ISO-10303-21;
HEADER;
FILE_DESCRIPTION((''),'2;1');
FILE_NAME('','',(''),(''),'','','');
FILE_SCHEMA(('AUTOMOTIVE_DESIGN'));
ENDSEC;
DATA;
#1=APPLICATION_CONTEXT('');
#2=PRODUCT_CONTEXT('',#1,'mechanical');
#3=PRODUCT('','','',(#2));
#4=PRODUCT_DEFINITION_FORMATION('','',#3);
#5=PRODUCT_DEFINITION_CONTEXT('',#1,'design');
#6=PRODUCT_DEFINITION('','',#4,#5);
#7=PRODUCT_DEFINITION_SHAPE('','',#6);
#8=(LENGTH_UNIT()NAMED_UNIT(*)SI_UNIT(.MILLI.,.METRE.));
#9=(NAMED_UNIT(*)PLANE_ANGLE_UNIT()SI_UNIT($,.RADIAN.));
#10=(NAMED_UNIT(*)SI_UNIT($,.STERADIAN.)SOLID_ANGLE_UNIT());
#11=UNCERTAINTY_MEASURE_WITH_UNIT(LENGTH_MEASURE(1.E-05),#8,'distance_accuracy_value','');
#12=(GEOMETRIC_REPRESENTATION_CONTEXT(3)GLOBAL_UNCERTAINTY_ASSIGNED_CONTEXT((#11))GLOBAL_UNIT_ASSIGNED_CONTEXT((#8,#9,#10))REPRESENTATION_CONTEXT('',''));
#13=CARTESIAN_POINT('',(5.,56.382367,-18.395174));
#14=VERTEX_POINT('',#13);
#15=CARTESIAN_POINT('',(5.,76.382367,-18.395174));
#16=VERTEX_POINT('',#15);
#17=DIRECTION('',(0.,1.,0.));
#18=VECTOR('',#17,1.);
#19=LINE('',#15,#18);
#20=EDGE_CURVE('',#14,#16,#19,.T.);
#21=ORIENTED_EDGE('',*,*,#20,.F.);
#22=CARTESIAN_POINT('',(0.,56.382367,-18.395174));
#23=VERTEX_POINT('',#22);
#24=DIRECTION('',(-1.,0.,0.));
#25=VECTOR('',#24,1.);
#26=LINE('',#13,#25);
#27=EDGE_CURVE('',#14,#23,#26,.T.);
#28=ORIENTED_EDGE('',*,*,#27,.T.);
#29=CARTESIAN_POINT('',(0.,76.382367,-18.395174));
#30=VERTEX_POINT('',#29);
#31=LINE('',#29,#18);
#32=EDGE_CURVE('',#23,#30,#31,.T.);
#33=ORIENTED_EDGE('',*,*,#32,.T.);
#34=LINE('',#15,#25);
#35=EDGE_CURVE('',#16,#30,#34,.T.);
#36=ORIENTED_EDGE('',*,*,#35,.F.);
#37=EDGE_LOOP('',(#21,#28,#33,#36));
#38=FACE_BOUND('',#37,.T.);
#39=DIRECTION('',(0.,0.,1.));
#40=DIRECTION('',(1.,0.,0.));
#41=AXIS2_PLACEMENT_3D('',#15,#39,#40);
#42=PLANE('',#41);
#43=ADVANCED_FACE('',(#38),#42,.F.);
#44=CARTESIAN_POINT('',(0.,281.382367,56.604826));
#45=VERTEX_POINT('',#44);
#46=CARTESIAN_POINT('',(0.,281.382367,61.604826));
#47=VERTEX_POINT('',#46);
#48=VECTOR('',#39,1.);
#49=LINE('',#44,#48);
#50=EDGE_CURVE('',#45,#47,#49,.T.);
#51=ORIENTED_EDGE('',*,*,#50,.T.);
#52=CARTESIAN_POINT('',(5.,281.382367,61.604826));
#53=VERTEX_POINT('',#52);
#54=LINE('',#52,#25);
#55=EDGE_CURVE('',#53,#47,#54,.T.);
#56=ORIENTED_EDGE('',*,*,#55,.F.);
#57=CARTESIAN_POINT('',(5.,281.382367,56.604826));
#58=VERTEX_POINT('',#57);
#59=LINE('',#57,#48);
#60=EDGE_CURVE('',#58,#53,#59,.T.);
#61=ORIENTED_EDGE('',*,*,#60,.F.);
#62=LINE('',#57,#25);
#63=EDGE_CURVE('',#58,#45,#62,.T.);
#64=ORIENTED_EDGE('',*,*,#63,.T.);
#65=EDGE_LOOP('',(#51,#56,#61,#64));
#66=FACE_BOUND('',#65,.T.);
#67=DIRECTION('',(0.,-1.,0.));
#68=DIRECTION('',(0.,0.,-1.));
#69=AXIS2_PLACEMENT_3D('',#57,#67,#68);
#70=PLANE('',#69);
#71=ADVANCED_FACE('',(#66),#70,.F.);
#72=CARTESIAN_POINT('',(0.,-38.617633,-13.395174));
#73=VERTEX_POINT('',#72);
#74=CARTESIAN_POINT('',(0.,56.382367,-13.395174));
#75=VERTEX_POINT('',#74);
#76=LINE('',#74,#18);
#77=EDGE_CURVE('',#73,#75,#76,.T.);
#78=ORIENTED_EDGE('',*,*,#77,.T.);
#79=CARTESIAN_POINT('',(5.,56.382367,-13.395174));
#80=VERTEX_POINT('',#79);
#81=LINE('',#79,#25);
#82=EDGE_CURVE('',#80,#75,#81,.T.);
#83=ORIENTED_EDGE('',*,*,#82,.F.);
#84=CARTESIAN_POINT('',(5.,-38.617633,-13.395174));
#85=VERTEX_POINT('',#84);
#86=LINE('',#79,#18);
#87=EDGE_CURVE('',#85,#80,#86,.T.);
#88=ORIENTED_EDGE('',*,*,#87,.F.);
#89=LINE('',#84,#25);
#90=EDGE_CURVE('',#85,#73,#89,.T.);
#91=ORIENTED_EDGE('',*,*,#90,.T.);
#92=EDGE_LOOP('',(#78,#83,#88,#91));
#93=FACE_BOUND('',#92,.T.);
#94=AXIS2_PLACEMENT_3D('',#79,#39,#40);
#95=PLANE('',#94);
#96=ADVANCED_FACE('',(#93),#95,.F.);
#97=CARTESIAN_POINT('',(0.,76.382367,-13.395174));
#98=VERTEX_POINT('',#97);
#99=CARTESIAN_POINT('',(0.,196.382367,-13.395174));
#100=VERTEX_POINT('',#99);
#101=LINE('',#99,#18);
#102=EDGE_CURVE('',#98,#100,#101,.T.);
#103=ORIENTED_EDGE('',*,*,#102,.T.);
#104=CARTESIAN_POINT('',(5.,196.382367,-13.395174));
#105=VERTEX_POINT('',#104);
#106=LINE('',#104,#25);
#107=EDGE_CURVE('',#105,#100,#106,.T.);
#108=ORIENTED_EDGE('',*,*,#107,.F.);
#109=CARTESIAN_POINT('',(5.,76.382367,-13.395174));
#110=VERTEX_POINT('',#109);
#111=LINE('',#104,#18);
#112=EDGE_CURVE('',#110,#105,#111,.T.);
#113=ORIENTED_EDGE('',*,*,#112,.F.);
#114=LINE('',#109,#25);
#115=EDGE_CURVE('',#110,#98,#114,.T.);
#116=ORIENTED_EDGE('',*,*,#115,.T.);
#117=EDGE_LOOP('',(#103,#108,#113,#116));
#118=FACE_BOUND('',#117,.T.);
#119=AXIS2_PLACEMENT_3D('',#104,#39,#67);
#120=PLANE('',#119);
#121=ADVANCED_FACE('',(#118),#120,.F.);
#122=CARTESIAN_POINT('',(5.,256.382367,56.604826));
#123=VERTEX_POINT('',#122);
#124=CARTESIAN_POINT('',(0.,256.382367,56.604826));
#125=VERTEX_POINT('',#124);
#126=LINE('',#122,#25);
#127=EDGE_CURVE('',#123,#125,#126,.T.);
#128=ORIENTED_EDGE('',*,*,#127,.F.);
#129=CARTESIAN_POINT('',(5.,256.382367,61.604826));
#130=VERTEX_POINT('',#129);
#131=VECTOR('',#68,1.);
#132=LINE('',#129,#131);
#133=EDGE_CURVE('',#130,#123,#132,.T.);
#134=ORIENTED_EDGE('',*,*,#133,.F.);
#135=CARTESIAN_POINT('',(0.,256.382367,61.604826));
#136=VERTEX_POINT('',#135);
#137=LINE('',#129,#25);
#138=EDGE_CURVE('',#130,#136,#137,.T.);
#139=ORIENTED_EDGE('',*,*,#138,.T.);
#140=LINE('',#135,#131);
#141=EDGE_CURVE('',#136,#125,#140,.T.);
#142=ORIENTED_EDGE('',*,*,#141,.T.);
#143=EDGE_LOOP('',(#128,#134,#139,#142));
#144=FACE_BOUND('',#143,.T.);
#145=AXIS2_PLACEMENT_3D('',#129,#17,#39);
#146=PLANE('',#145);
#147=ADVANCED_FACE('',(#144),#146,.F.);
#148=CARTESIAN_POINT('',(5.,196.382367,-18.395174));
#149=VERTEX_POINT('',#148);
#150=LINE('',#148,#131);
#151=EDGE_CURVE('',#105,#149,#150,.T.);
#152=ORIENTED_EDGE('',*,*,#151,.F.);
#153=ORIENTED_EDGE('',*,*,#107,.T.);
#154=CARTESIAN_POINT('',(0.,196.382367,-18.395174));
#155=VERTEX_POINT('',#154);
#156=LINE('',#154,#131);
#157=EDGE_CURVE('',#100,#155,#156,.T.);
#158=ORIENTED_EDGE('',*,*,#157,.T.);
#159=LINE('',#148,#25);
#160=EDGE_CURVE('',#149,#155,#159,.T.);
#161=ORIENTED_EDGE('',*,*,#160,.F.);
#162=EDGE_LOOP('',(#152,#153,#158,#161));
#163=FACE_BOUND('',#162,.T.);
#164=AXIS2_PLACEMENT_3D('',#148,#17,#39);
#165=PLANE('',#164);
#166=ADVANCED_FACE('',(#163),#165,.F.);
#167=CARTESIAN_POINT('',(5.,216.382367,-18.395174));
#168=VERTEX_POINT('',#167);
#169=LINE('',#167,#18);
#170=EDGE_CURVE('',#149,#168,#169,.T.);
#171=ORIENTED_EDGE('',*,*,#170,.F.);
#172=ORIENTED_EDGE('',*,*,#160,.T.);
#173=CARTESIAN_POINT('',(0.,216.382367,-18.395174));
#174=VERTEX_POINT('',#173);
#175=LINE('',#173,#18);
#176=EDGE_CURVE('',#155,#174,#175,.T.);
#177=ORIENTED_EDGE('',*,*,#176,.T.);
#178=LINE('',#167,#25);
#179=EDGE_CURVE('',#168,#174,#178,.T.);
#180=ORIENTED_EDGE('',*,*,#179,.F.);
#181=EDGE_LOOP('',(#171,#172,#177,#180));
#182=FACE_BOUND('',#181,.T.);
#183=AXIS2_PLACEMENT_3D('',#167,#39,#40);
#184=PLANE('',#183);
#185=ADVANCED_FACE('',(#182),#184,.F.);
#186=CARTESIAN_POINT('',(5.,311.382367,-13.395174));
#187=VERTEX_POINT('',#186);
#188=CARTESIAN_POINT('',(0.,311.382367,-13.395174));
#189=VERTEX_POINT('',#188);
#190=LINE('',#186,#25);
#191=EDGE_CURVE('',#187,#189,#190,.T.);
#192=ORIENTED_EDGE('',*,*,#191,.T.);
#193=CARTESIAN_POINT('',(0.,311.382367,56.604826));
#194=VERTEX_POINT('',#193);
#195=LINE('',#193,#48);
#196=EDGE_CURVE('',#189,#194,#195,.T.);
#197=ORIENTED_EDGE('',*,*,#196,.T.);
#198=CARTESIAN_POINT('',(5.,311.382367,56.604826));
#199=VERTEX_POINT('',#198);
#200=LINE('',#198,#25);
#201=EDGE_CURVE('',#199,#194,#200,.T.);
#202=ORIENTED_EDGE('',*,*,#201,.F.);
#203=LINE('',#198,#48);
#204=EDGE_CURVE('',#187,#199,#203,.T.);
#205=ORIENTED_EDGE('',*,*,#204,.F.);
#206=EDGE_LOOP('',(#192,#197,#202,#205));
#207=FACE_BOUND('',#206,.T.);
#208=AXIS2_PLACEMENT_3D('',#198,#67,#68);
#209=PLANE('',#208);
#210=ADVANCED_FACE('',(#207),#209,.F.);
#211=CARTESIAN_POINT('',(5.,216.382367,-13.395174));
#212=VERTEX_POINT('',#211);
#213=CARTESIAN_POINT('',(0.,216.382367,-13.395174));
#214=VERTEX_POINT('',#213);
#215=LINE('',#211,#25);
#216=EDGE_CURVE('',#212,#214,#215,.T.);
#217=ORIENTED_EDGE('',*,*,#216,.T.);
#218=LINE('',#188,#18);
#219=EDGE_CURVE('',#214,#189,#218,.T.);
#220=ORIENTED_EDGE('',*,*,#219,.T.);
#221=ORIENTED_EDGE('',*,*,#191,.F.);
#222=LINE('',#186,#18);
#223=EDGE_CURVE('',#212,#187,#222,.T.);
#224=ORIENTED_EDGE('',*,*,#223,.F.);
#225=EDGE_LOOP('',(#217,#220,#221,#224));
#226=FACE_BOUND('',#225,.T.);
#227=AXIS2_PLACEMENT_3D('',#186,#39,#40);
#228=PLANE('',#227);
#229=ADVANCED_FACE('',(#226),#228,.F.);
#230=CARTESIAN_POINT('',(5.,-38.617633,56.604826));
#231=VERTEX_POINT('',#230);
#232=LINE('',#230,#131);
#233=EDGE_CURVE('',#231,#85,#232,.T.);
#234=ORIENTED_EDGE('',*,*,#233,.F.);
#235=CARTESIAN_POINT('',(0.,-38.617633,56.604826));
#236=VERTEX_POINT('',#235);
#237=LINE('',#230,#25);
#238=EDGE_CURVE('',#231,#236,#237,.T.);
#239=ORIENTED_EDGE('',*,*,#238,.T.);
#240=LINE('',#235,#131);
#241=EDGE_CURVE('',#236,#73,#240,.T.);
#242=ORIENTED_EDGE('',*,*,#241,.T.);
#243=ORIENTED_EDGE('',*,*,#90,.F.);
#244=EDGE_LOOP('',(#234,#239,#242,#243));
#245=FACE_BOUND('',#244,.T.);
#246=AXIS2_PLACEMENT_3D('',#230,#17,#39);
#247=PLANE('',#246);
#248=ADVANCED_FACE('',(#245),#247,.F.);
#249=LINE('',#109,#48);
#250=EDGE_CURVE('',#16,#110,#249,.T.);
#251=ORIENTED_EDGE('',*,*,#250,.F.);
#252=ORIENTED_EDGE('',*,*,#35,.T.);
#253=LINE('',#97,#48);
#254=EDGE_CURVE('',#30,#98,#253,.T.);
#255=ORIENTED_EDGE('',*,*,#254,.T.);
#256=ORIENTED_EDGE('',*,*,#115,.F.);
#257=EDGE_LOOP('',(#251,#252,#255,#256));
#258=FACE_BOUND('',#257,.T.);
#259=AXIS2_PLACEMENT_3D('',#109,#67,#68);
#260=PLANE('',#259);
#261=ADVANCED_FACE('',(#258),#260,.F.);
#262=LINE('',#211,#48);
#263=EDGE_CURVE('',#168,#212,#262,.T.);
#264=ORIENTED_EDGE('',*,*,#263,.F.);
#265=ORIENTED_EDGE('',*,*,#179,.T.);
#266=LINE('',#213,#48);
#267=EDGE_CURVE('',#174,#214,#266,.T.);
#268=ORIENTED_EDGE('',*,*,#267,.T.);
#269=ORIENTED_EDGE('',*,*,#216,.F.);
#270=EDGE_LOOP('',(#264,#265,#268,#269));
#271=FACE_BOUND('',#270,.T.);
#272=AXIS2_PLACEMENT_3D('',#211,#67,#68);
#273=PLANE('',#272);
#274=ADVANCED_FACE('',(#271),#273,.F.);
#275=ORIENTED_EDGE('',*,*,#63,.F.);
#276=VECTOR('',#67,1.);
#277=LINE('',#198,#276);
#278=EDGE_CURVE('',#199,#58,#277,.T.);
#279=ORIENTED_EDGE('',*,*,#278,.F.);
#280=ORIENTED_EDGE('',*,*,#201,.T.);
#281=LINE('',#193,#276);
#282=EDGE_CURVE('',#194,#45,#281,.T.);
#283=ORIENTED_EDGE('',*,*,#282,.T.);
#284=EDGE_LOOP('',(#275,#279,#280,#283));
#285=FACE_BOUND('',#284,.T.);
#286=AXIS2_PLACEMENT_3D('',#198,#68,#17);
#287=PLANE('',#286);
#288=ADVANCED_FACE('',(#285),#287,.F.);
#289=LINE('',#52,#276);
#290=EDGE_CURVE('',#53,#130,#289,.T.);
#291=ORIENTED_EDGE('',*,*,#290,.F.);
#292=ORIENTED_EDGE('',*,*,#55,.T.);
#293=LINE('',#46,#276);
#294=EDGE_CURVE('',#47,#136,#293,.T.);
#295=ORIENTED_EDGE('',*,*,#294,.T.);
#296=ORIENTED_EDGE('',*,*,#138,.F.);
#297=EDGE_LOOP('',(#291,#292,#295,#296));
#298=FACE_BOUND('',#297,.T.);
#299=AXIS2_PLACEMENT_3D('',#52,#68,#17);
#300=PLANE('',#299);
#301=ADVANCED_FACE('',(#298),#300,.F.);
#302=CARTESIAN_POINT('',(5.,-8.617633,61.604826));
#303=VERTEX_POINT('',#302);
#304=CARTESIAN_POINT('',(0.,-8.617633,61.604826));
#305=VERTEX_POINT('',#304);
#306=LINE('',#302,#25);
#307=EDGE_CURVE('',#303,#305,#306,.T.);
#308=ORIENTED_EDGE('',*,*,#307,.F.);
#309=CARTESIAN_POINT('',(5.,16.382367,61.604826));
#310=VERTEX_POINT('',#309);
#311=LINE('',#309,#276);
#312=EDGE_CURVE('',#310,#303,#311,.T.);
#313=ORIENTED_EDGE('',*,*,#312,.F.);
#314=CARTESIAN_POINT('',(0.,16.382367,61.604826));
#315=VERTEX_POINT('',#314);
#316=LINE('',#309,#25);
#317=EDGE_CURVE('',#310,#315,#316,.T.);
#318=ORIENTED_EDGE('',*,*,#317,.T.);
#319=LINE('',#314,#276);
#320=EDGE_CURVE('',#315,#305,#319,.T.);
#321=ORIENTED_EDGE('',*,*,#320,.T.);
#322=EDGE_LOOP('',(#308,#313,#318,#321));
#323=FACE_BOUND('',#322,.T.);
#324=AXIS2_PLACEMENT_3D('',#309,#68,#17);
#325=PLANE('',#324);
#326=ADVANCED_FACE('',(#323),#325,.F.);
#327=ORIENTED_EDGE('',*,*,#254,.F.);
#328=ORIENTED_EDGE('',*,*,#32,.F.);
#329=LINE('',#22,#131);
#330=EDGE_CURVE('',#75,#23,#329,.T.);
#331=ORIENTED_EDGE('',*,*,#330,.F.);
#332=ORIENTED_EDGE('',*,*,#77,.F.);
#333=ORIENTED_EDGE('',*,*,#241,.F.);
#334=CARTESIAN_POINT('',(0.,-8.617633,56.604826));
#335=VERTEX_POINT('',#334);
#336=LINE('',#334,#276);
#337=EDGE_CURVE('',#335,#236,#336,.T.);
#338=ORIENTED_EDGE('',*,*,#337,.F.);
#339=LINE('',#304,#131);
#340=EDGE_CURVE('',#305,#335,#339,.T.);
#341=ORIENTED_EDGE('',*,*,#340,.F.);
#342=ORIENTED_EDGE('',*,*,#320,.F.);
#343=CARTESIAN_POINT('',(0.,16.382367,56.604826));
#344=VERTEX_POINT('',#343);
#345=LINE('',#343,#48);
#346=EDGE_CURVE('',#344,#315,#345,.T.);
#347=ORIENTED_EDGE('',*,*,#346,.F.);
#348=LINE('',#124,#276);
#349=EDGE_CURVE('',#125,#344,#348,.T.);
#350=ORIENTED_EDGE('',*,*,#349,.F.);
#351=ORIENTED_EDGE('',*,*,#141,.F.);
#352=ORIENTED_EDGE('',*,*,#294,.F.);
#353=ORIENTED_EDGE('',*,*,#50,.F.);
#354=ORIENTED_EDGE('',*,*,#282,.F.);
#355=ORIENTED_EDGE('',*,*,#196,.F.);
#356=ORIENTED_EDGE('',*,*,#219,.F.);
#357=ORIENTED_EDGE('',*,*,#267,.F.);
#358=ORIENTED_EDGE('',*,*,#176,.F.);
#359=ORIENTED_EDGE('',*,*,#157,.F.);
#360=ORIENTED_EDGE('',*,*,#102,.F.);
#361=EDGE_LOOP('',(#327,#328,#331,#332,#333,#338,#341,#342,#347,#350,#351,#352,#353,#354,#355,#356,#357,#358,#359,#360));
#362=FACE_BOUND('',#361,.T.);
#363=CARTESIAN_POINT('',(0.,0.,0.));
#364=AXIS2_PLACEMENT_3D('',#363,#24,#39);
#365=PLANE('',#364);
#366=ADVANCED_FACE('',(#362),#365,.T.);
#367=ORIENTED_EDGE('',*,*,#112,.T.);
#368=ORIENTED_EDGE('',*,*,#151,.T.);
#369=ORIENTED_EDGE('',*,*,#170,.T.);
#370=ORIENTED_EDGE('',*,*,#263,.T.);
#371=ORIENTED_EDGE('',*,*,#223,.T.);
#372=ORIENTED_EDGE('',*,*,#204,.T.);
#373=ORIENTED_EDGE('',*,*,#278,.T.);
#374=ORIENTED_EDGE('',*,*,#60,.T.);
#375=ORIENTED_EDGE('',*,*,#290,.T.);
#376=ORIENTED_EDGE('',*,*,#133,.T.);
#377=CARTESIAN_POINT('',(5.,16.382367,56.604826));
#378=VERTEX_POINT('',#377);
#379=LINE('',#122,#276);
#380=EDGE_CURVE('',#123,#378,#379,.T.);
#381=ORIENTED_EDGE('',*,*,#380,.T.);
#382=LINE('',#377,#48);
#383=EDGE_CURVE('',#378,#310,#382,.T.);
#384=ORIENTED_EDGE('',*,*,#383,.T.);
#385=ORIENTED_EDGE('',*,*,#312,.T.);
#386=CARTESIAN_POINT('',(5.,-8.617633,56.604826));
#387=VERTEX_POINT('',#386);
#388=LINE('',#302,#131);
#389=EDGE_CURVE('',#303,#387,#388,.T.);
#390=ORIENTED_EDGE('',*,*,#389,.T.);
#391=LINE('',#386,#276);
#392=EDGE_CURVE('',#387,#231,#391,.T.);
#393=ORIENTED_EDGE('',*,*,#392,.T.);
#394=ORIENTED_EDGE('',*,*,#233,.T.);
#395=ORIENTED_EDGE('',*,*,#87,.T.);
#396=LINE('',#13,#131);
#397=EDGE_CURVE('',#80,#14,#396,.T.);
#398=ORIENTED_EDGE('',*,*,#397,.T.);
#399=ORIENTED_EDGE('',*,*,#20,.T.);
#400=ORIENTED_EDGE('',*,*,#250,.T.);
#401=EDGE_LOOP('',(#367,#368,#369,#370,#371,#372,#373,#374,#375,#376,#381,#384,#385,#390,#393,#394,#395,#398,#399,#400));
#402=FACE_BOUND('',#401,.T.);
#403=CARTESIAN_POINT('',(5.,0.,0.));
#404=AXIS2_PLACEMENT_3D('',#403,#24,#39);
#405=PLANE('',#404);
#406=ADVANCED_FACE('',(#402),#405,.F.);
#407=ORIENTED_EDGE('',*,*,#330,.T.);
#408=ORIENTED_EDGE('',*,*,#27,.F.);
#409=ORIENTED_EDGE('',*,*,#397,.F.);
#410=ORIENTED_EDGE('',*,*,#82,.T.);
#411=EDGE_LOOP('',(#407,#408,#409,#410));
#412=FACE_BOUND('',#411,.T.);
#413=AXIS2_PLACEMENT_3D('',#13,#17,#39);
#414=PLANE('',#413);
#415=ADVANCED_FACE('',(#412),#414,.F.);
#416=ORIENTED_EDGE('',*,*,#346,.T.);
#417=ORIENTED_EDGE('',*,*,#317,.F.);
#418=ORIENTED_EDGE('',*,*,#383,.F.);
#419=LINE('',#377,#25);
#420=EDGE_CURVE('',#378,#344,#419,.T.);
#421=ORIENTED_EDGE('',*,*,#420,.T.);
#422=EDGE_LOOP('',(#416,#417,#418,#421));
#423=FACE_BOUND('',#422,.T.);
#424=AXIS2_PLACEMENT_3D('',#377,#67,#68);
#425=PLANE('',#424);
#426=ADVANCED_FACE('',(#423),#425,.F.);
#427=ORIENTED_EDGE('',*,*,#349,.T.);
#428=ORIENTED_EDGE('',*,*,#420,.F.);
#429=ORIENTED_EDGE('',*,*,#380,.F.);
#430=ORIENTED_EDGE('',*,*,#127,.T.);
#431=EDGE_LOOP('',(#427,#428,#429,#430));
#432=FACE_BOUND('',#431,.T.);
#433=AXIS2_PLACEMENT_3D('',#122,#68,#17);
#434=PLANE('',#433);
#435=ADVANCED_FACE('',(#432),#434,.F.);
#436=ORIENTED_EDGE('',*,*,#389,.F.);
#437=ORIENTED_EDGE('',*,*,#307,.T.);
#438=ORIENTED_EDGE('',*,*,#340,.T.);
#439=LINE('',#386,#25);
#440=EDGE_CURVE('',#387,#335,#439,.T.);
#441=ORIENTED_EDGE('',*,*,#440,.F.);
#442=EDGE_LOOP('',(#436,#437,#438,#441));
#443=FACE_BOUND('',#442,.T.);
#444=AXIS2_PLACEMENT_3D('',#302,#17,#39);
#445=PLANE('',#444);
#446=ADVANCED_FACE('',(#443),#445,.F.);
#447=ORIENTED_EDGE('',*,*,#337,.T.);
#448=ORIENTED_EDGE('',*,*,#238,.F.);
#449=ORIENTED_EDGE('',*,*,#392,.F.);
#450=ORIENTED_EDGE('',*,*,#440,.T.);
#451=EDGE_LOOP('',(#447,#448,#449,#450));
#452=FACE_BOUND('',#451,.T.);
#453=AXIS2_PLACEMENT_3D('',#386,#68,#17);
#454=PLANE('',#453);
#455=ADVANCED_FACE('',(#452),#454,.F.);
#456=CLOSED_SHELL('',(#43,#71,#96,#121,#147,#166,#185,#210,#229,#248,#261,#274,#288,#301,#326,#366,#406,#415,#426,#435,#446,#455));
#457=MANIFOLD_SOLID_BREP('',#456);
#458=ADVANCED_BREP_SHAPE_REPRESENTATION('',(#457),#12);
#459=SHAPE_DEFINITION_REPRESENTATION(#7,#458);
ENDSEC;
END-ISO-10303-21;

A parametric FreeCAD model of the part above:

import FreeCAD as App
import Part
import Sketcher
from FreeCAD import Vector
Q = App.Units.Quantity


def add_polygon(sketch, points):
    """Adds a closed chain of lines whose ends are joined by coincident constraints."""
    first, n = sketch.GeometryCount, len(points)
    for a, b in zip(points, points[1:] + points[:1]):
        sketch.addGeometry(Part.LineSegment(App.Vector(*a, 0), App.Vector(*b, 0)), False)
    for i in range(n):
        sketch.addConstraint(Sketcher.Constraint("Coincident", first + i, 2, first + (i + 1) % n, 1))

doc = App.newDocument("Part")
body = doc.addObject("PartDesign::Body", "Body")

# Sketch on YZ plane
sketch1 = doc.addObject("Sketcher::SketchObject", "Sketch")
body.addObject(sketch1)
sketch1.AttachmentSupport = (doc.YZ_Plane, [""])
sketch1.MapMode = "FlatFace"
add_polygon(sketch1, [(16.4, 61.6), (-8.6, 61.6), (-8.6, 56.6), (-38.6, 56.6), (-38.6, -13.4), (56.4, -13.4), (56.4, -18.4), (76.4, -18.4), (76.4, -13.4), (196.4, -13.4), (196.4, -18.4), (216.4, -18.4), (216.4, -13.4), (311.4, -13.4), (311.4, 56.6), (281.4, 56.6), (281.4, 61.6), (256.4, 61.6), (256.4, 56.6), (16.4, 56.6)])  # lines 0-19
sketch1.addConstraint(Sketcher.Constraint("Horizontal", 0))
sketch1.addConstraint(Sketcher.Constraint("Vertical", 1))
sketch1.addConstraint(Sketcher.Constraint("Horizontal", 2))
sketch1.addConstraint(Sketcher.Constraint("Vertical", 3))
sketch1.addConstraint(Sketcher.Constraint("Horizontal", 4))
sketch1.addConstraint(Sketcher.Constraint("Vertical", 5))
sketch1.addConstraint(Sketcher.Constraint("Horizontal", 6))
sketch1.addConstraint(Sketcher.Constraint("Vertical", 7))
sketch1.addConstraint(Sketcher.Constraint("Horizontal", 8))
sketch1.addConstraint(Sketcher.Constraint("Vertical", 9))
sketch1.addConstraint(Sketcher.Constraint("Horizontal", 10))
sketch1.addConstraint(Sketcher.Constraint("Vertical", 11))
sketch1.addConstraint(Sketcher.Constraint("Horizontal", 12))
sketch1.addConstraint(Sketcher.Constraint("Vertical", 13))
sketch1.addConstraint(Sketcher.Constraint("Horizontal", 14))
sketch1.addConstraint(Sketcher.Constraint("Vertical", 15))
sketch1.addConstraint(Sketcher.Constraint("Horizontal", 16))
sketch1.addConstraint(Sketcher.Constraint("Vertical", 17))
sketch1.addConstraint(Sketcher.Constraint("Horizontal", 18))
sketch1.addConstraint(Sketcher.Constraint("Vertical", 19))
sketch1.addConstraint(Sketcher.Constraint("Horizontal", 4, 2, 7, 2))
sketch1.addConstraint(Sketcher.Constraint("Horizontal", 6, 2, 9, 2))
sketch1.addConstraint(Sketcher.Constraint("Horizontal", 8, 2, 11, 2))
sketch1.addConstraint(Sketcher.Constraint("Horizontal", 2, 2, 13, 2))
sketch1.addConstraint(Sketcher.Constraint("Horizontal", 0, 2, 15, 2))
sketch1.addConstraint(Sketcher.Constraint("Horizontal", 14, 2, 17, 2))
sketch1.addConstraint(Sketcher.Constraint("Equal", 6, 10))
sketch1.addConstraint(Sketcher.Constraint("Equal", 4, 12))
sketch1.addConstraint(Sketcher.Constraint("Equal", 2, 14))
sketch1.addConstraint(Sketcher.Constraint("Equal", 0, 16))
sketch1.addConstraint(Sketcher.Constraint("Equal", 1, 5))
sketch1.addConstraint(Sketcher.Constraint("DistanceX", 0, 2, 0, 1, Q("25 mm")))
sketch1.addConstraint(Sketcher.Constraint("DistanceX", 2, 2, 2, 1, Q("30 mm")))
sketch1.addConstraint(Sketcher.Constraint("DistanceX", 4, 1, 4, 2, Q("95 mm")))
sketch1.addConstraint(Sketcher.Constraint("DistanceX", 6, 1, 6, 2, Q("20 mm")))
sketch1.addConstraint(Sketcher.Constraint("DistanceX", 8, 1, 8, 2, Q("120 mm")))
sketch1.addConstraint(Sketcher.Constraint("DistanceY", 1, 2, 1, 1, Q("5 mm")))
sketch1.addConstraint(Sketcher.Constraint("DistanceY", 3, 2, 3, 1, Q("70 mm")))
sketch1.addConstraint(Sketcher.Constraint("DistanceX", 0, 2, -1, 1, Q("8.617633 mm")))
sketch1.addConstraint(Sketcher.Constraint("DistanceY", -1, 1, 0, 2, Q("61.604826 mm")))
pad1 = doc.addObject("PartDesign::Pad", "Pad")
body.addObject(pad1)
pad1.Profile = sketch1
pad1.Length = 5

doc.recompute()
